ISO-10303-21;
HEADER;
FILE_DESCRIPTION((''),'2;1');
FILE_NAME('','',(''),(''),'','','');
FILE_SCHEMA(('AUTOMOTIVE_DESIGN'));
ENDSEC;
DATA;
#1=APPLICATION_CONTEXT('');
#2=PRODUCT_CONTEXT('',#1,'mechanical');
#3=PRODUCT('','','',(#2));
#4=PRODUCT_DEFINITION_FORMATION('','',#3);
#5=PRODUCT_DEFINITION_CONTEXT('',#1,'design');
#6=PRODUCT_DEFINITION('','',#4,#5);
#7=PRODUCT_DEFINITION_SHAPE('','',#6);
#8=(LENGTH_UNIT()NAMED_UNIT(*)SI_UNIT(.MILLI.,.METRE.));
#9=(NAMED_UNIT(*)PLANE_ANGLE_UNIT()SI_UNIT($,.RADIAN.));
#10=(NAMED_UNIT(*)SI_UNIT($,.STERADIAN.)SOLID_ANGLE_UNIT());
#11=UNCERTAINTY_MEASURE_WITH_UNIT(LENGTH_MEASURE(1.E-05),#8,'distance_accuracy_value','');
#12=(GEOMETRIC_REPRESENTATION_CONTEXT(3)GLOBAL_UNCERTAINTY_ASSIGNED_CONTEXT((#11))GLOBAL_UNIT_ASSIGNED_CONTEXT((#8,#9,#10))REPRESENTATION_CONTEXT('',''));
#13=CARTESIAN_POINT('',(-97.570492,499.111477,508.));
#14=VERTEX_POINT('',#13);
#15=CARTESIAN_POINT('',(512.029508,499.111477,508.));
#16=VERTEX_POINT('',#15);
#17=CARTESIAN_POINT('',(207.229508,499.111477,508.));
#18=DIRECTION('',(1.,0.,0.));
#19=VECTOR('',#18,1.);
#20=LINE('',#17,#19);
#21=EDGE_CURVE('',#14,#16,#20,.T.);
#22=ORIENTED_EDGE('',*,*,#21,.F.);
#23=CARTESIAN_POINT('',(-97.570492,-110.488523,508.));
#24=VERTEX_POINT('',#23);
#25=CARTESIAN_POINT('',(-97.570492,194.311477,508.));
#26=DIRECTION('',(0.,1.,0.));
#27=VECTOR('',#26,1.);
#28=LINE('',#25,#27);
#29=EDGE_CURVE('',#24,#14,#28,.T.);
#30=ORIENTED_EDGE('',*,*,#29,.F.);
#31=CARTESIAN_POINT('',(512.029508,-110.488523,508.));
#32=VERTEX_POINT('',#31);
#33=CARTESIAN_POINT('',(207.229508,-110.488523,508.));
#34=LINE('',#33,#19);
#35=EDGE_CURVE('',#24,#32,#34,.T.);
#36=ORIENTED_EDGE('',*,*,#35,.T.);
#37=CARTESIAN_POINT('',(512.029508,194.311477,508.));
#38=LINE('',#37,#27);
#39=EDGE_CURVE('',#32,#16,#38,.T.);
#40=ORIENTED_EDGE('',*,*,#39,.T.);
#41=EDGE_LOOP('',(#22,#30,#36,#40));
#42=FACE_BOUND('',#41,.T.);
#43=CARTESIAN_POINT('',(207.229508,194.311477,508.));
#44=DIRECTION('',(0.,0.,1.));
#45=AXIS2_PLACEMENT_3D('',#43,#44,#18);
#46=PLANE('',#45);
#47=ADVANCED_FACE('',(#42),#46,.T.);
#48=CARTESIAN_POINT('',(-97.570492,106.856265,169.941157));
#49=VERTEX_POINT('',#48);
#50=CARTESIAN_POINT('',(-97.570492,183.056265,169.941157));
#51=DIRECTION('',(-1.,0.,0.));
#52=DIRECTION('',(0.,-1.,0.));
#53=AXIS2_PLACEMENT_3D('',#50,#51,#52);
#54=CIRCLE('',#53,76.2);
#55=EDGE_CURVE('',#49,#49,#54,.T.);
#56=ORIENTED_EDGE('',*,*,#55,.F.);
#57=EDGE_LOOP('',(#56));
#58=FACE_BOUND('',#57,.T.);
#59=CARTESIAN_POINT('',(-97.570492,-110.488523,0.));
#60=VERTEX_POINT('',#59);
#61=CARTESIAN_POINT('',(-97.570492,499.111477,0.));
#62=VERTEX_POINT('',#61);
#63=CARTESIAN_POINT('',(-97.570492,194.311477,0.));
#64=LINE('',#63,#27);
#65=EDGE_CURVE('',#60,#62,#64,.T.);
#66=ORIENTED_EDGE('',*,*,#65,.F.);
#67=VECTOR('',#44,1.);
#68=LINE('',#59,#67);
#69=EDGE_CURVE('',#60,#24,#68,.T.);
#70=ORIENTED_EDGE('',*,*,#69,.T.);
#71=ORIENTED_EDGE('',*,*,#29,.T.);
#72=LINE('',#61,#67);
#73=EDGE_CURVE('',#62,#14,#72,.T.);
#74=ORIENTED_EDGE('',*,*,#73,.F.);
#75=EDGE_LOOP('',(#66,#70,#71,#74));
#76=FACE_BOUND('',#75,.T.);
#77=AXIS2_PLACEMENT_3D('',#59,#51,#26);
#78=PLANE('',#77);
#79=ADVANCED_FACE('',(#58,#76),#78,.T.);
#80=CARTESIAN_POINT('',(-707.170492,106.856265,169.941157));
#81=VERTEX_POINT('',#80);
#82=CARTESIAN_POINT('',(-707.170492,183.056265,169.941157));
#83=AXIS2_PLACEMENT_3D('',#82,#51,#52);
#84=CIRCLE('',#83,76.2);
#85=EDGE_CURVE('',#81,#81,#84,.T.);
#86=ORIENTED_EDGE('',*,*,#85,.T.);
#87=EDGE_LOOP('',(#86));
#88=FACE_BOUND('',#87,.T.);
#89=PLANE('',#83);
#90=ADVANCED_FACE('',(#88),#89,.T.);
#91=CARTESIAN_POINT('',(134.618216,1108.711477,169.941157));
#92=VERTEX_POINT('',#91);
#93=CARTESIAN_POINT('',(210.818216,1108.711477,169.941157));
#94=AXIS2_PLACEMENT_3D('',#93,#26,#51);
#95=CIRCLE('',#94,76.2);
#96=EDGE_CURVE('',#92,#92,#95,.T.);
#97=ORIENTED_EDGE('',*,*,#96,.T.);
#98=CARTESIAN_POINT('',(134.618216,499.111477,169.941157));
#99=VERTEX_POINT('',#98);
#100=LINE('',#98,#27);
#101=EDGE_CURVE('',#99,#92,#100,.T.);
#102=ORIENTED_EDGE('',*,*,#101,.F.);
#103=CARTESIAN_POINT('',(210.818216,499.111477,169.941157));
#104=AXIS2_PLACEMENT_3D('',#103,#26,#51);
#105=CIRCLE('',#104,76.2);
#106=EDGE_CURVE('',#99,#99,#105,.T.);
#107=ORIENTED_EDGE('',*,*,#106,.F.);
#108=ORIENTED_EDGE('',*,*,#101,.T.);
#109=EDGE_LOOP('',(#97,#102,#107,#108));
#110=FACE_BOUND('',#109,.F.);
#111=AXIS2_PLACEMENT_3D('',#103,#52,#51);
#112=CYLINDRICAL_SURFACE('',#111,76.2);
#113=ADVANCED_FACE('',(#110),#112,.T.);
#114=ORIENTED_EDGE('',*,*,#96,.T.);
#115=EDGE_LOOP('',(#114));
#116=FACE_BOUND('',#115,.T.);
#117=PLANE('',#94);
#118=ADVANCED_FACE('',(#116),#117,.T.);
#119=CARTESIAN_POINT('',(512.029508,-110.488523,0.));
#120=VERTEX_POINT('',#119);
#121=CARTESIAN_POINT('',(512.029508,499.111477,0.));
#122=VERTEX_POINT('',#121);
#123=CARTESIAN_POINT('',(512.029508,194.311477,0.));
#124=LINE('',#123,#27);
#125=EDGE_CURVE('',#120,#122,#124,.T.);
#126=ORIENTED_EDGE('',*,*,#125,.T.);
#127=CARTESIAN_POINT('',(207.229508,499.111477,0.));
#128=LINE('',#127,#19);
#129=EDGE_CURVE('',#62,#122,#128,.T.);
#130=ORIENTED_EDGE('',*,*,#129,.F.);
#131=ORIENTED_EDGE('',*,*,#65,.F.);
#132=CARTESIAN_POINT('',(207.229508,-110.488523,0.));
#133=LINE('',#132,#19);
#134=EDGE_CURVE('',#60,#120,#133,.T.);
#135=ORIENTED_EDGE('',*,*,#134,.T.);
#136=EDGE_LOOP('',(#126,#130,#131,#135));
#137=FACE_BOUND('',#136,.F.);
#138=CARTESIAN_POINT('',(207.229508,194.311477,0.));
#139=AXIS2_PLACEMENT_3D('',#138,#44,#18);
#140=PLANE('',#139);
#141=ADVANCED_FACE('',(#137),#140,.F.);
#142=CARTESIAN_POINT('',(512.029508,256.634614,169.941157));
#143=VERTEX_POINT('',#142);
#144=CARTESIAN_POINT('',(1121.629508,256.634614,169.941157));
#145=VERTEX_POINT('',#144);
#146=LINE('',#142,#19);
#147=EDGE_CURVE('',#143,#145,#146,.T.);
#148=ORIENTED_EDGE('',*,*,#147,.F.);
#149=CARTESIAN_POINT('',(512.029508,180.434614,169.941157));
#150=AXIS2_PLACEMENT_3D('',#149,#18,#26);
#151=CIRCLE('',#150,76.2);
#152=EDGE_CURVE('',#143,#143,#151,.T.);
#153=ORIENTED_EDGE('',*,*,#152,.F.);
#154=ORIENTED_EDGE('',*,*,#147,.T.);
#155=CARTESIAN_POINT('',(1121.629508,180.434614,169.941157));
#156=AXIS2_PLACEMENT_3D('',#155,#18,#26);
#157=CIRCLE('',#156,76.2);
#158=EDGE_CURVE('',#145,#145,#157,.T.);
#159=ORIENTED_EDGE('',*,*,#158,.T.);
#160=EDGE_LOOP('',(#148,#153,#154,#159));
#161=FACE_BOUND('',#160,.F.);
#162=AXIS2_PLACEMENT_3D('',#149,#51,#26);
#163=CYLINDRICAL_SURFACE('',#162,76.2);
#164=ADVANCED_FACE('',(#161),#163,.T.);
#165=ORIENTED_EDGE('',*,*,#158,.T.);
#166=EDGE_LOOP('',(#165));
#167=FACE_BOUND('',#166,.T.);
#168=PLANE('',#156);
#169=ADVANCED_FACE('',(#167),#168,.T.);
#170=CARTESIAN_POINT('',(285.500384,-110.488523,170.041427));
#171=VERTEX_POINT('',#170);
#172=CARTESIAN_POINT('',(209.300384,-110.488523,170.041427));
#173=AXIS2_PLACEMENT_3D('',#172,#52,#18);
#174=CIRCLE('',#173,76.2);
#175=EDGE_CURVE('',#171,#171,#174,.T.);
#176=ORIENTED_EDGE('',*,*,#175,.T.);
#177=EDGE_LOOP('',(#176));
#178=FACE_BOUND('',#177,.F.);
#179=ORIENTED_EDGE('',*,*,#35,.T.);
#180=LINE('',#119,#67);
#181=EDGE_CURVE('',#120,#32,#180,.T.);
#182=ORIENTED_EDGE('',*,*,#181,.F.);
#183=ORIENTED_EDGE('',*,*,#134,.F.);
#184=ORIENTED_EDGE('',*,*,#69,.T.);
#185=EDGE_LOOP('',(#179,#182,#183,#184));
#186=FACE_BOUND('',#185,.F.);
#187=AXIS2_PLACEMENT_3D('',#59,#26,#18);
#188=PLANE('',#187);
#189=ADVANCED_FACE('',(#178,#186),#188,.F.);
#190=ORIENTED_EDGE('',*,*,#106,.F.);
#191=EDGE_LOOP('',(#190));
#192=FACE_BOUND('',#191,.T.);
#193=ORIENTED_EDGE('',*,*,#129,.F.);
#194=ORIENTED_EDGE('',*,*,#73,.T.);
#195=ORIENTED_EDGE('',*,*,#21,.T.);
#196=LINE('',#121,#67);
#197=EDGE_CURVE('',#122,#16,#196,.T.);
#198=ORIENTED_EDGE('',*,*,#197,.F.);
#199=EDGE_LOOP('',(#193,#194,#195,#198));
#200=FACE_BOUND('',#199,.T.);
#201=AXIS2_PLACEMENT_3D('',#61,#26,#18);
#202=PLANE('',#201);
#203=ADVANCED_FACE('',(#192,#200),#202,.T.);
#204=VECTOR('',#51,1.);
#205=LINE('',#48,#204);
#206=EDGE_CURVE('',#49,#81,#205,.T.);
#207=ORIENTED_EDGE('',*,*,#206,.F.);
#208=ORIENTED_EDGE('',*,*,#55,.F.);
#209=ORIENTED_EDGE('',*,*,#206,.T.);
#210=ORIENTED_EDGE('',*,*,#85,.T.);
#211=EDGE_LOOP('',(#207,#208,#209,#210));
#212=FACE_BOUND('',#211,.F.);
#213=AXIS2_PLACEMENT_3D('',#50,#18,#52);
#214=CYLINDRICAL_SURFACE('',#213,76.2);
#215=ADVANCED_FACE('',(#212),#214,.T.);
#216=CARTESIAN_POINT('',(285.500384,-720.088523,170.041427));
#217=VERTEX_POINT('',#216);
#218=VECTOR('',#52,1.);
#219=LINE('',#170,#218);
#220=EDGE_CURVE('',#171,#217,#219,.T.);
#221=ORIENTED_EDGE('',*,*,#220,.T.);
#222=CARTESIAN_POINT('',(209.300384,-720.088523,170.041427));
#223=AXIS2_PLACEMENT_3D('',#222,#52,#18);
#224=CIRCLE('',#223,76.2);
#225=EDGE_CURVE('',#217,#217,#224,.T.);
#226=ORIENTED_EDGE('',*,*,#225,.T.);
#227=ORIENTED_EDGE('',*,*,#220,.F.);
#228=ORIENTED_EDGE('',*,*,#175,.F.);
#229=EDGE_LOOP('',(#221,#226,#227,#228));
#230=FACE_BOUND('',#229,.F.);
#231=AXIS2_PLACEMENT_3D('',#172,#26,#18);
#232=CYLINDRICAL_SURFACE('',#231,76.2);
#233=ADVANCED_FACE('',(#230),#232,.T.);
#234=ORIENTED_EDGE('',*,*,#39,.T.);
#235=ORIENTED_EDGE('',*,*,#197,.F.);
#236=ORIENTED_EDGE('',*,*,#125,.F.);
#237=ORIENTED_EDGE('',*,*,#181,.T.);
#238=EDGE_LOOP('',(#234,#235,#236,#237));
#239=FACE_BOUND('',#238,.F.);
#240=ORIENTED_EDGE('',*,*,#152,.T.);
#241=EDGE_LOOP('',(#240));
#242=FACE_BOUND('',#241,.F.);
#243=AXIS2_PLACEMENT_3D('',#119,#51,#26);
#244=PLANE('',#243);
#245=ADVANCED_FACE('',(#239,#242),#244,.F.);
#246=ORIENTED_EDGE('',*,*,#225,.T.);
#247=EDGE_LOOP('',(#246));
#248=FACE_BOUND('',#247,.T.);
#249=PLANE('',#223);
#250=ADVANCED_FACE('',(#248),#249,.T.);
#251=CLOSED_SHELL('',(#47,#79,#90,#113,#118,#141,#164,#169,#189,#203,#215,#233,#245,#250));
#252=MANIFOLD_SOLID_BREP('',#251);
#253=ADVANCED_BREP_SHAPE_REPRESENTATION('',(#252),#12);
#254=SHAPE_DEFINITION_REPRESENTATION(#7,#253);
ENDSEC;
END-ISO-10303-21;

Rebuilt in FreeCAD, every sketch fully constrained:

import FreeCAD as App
import Part
import Sketcher

V = App.Vector
Q = App.Units.Quantity

doc = App.newDocument("Part")
body = doc.addObject("PartDesign::Body", "Body")

# Sketch on XY plane
sketch1 = body.newObject("Sketcher::SketchObject", "Sketch")
sketch1.AttachmentSupport = (doc.getObject("XY_Plane"), [""])
sketch1.MapMode = "FlatFace"
sketch1.addGeometry(Part.LineSegment(V(-98, 499, 0), V(-98, -110, 0)), False)
sketch1.addGeometry(Part.LineSegment(V(-98, -110, 0), V(512, -110, 0)), False)
sketch1.addGeometry(Part.LineSegment(V(512, -110, 0), V(512, 499, 0)), False)
sketch1.addGeometry(Part.LineSegment(V(512, 499, 0), V(-98, 499, 0)), False)
sketch1.addConstraint(Sketcher.Constraint("Coincident", 0, 2, 1, 1))
sketch1.addConstraint(Sketcher.Constraint("Coincident", 1, 2, 2, 1))
sketch1.addConstraint(Sketcher.Constraint("Coincident", 2, 2, 3, 1))
sketch1.addConstraint(Sketcher.Constraint("Coincident", 3, 2, 0, 1))
sketch1.addConstraint(Sketcher.Constraint("Vertical", 0))
sketch1.addConstraint(Sketcher.Constraint("Horizontal", 1))
sketch1.addConstraint(Sketcher.Constraint("Vertical", 2))
sketch1.addConstraint(Sketcher.Constraint("Horizontal", 3))
sketch1.addConstraint(Sketcher.Constraint("Equal", 3, 0))
sketch1.addConstraint(Sketcher.Constraint("DistanceX", 1, 1, 1, 2, Q("24 in")))
sketch1.addConstraint(Sketcher.Constraint("DistanceX", 0, 2, -1, 1, Q("97.570492 mm")))
sketch1.addConstraint(Sketcher.Constraint("DistanceY", 0, 2, -1, 1, Q("110.488523 mm")))
pad1 = body.newObject("PartDesign::Pad", "Pad")
pad1.Profile = sketch1
pad1.Length = Q("20 in")

# Sketch on XZ plane
sketch2 = body.newObject("Sketcher::SketchObject", "Sketch001")
sketch2.AttachmentSupport = (doc.getObject("XZ_Plane"), [""])
sketch2.MapMode = "FlatFace"
sketch2.AttachmentOffset = App.Placement(V(0, 0, 110.488523), App.Rotation())
sketch2.addGeometry(Part.Circle(V(209, 170, 0), V(0, 0, 1), 76), False)
sketch2.addConstraint(Sketcher.Constraint("Diameter", 0, Q("6 in")))
sketch2.addConstraint(Sketcher.Constraint("DistanceX", -1, 1, 0, 3, Q("209.300384 mm")))
sketch2.addConstraint(Sketcher.Constraint("DistanceY", -1, 1, 0, 3, Q("170.041427 mm")))
pad2 = body.newObject("PartDesign::Pad", "Pad001")
pad2.Profile = sketch2
pad2.Length = Q("24 in")

# Sketch on YZ plane
sketch3 = body.newObject("Sketcher::SketchObject", "Sketch002")
sketch3.AttachmentSupport = (doc.getObject("YZ_Plane"), [""])
sketch3.MapMode = "FlatFace"
sketch3.AttachmentOffset = App.Placement(V(0, 0, -97.570492), App.Rotation())
sketch3.addGeometry(Part.Circle(V(183, 170, 0), V(0, 0, 1), 76), False)
sketch3.addConstraint(Sketcher.Constraint("Diameter", 0, Q("6 in")))
sketch3.addConstraint(Sketcher.Constraint("DistanceX", -1, 1, 0, 3, Q("183.056265 mm")))
sketch3.addConstraint(Sketcher.Constraint("DistanceY", -1, 1, 0, 3, Q("169.941157 mm")))
pad3 = body.newObject("PartDesign::Pad", "Pad002")
pad3.Profile = sketch3
pad3.Length = Q("24 in")
pad3.Reversed = True

# Sketch on XZ plane
sketch4 = body.newObject("Sketcher::SketchObject", "Sketch003")
sketch4.AttachmentSupport = (doc.getObject("XZ_Plane"), [""])
sketch4.MapMode = "FlatFace"
sketch4.AttachmentOffset = App.Placement(V(0, 0, -499.111477), App.Rotation())
sketch4.addGeometry(Part.Circle(V(211, 170, 0), V(0, 0, 1), 76), False)
sketch4.addConstraint(Sketcher.Constraint("Diameter", 0, Q("6 in")))
sketch4.addConstraint(Sketcher.Constraint("DistanceX", -1, 1, 0, 3, Q("210.818216 mm")))
sketch4.addConstraint(Sketcher.Constraint("DistanceY", -1, 1, 0, 3, Q("169.941157 mm")))
pad4 = body.newObject("PartDesign::Pad", "Pad003")
pad4.Profile = sketch4
pad4.Length = Q("24 in")
pad4.Reversed = True

# Sketch on YZ plane
sketch5 = body.newObject("Sketcher::SketchObject", "Sketch004")
sketch5.AttachmentSupport = (doc.getObject("YZ_Plane"), [""])
sketch5.MapMode = "FlatFace"
sketch5.AttachmentOffset = App.Placement(V(0, 0, 512.029508), App.Rotation())
sketch5.addGeometry(Part.Circle(V(180, 170, 0), V(0, 0, 1), 76), False)
sketch5.addConstraint(Sketcher.Constraint("Diameter", 0, Q("6 in")))
sketch5.addConstraint(Sketcher.Constraint("DistanceX", -1, 1, 0, 3, Q("180.434614 mm")))
sketch5.addConstraint(Sketcher.Constraint("DistanceY", -1, 1, 0, 3, Q("169.941157 mm")))
pad5 = body.newObject("PartDesign::Pad", "Pad004")
pad5.Profile = sketch5
pad5.Length = Q("24 in")

doc.recompute()
